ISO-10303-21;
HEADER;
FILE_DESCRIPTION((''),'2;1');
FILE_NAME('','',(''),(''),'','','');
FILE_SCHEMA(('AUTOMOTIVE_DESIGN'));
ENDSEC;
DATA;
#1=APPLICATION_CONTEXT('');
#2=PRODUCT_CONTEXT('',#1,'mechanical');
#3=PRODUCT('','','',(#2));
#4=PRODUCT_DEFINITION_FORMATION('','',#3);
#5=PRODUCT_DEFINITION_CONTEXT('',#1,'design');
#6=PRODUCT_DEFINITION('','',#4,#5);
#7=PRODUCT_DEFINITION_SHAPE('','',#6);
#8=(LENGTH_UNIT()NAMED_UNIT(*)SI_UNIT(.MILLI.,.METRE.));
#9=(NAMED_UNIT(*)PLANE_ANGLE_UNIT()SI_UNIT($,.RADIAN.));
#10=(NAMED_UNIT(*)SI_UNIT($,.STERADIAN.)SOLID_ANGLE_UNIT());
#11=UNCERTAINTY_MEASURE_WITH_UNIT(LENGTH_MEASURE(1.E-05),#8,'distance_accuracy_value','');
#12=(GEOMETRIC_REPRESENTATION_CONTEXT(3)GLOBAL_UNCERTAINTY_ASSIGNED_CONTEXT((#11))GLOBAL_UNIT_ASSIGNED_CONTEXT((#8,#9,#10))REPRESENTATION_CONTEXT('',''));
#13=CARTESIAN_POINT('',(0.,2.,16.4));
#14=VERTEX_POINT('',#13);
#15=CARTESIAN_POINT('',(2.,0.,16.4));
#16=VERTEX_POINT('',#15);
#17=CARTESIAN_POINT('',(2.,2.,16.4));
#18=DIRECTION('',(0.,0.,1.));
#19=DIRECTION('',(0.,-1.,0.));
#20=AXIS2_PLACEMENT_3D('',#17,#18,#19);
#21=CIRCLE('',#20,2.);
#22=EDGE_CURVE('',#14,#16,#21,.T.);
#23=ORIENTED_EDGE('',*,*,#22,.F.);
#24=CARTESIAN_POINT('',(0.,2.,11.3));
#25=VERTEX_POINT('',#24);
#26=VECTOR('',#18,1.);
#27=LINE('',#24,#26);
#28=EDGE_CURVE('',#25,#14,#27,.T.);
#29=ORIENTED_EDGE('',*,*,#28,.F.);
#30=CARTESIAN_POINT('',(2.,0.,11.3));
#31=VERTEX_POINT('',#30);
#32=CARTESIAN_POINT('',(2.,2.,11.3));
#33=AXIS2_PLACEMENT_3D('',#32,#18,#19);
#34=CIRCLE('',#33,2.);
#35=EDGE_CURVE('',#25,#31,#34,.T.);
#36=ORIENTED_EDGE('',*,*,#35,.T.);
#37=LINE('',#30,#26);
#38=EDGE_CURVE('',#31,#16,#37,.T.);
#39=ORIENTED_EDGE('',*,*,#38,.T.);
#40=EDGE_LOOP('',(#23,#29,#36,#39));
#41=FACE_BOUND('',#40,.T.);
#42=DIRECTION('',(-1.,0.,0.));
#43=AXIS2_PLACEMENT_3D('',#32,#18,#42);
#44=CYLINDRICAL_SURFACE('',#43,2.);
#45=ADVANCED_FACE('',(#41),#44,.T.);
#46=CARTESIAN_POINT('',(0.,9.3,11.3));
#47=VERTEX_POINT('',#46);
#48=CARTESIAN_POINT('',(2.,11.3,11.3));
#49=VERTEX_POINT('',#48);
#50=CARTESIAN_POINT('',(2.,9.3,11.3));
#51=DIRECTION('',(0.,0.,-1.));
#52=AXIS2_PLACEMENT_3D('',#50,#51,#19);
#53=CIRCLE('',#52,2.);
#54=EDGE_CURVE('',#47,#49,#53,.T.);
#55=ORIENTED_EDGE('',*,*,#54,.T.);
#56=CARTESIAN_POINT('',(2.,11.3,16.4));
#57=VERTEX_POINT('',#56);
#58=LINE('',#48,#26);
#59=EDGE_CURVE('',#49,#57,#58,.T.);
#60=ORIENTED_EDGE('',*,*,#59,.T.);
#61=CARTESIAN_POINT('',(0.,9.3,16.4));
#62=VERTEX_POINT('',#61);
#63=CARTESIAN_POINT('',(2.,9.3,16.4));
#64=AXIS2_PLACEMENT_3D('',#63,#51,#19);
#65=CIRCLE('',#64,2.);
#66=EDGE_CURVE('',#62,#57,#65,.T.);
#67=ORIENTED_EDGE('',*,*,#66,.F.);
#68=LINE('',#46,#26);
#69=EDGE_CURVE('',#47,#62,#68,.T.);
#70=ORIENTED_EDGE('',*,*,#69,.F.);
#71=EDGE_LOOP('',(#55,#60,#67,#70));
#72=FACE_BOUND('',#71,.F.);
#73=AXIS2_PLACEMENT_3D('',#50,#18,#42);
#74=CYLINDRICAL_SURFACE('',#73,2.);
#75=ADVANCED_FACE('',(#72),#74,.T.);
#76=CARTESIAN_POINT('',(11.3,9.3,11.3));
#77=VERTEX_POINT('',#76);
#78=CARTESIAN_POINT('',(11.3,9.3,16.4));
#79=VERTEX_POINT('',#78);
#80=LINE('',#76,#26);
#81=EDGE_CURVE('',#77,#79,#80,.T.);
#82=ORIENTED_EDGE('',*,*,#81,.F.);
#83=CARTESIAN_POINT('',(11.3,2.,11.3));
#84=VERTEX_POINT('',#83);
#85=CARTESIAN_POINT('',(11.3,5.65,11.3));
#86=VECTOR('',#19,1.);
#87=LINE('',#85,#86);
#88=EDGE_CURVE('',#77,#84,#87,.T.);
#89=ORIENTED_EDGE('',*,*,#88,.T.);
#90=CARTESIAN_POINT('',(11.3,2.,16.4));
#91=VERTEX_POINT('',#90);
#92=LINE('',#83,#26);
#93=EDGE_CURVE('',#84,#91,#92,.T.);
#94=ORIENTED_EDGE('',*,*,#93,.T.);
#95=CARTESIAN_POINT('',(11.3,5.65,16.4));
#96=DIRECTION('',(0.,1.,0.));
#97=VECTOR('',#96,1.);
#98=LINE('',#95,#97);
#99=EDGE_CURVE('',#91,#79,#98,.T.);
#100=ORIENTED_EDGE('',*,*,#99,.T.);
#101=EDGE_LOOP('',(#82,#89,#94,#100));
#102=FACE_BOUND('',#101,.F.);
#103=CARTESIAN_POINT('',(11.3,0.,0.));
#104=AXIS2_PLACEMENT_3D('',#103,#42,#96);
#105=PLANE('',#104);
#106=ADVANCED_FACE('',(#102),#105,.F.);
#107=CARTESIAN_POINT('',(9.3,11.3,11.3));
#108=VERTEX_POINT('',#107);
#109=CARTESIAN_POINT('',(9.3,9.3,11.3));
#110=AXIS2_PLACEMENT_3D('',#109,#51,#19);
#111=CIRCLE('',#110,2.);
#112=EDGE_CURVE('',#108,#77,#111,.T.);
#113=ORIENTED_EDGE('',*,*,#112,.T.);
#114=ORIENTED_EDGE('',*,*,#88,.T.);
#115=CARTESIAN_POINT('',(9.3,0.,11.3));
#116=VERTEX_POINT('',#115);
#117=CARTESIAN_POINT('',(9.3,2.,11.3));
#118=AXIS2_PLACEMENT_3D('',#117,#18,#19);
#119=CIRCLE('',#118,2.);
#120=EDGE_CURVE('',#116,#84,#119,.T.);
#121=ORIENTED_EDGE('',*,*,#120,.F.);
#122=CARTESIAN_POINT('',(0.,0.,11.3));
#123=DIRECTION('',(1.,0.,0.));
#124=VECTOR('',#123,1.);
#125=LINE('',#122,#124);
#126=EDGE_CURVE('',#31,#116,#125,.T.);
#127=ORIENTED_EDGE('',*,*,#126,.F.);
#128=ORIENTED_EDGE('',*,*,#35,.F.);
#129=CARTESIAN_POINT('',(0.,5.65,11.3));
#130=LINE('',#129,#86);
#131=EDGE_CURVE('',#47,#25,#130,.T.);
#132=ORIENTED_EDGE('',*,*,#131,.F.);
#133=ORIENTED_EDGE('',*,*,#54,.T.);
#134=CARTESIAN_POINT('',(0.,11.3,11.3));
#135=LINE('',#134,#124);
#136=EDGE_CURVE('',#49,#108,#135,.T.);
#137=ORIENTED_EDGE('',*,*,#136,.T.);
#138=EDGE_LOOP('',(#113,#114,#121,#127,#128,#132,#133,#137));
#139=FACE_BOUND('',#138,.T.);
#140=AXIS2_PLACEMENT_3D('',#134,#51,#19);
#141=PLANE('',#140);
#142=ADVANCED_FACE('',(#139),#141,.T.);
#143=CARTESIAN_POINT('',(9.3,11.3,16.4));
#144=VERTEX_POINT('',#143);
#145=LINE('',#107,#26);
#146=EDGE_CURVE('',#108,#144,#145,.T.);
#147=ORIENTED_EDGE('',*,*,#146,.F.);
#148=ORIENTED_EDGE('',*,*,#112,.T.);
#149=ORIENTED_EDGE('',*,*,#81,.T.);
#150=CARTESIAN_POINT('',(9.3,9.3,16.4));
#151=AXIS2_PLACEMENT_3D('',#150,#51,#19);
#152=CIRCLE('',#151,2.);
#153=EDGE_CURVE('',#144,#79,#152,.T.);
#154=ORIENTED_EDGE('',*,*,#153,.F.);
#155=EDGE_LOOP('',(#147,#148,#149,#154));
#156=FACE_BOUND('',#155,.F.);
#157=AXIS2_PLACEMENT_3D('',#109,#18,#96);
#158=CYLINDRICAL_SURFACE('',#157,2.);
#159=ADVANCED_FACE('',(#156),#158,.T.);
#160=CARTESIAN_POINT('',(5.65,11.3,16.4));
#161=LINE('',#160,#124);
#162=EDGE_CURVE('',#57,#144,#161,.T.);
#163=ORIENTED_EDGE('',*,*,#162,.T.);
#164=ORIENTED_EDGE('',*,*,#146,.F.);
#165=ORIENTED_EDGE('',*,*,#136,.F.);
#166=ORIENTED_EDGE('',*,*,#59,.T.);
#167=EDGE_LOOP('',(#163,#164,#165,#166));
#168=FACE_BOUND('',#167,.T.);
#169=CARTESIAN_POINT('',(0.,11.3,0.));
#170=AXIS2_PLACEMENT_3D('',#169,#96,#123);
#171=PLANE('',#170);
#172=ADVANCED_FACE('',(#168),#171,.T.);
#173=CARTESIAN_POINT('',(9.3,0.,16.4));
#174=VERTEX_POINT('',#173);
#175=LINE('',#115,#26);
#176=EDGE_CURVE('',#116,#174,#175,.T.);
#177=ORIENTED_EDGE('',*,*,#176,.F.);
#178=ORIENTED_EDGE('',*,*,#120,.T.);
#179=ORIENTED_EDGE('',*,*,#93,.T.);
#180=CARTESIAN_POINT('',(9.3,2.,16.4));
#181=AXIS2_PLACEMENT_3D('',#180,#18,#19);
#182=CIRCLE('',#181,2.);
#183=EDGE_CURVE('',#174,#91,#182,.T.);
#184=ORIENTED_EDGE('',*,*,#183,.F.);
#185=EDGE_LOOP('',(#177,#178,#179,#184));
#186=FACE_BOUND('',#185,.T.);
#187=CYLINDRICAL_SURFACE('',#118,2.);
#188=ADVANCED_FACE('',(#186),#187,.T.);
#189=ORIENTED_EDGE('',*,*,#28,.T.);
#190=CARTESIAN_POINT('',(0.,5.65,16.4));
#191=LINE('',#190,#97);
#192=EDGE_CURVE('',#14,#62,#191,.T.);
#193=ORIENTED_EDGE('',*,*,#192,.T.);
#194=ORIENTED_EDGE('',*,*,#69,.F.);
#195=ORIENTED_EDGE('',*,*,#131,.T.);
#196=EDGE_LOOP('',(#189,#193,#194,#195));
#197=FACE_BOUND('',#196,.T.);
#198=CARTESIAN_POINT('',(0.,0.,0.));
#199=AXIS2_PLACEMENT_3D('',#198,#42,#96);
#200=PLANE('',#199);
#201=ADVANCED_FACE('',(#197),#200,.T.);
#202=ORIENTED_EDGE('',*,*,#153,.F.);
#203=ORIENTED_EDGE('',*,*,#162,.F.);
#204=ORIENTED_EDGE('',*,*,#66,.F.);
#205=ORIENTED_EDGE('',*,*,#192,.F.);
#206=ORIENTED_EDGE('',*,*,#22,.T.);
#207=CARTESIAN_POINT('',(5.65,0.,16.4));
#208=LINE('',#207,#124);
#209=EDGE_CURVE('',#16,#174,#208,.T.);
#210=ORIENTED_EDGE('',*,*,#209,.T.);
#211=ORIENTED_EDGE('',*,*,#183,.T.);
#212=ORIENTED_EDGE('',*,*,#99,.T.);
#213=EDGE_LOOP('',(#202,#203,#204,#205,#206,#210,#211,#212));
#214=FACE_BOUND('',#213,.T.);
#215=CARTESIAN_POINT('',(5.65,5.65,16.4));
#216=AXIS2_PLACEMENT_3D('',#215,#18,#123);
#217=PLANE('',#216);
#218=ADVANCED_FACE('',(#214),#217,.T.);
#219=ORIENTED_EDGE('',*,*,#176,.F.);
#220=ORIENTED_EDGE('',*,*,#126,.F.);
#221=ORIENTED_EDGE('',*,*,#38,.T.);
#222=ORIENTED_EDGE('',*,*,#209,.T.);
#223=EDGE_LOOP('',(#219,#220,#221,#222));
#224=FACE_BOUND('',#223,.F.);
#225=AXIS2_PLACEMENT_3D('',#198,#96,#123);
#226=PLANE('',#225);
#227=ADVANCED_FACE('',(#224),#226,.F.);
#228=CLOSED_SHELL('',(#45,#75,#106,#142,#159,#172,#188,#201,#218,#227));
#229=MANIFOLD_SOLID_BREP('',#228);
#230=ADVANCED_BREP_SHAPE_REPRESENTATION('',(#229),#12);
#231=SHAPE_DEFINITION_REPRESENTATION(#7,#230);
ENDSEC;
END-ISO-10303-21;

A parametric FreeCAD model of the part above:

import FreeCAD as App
import Part
import Sketcher

V = App.Vector


def edges_at(feature, points):
    """Names of the edges that pass closest to the given points."""
    edges = feature.Shape.Edges
    near = lambda p: min(range(len(edges)), key=lambda i: edges[i].distToShape(Part.Vertex(*p))[0])
    return sorted({f"Edge{near(p) + 1}" for p in points})

doc = App.newDocument("Part")
body = doc.addObject("PartDesign::Body", "Body")

sketch1 = body.newObject("Sketcher::SketchObject", "Sketch")
sketch1.AttachmentSupport = (doc.getObject("XY_Plane"), [""])
sketch1.MapMode = "FlatFace"
sketch1.addGeometry([
    Part.LineSegment(V(0, 11, 0), V(0, 0, 0)),
    Part.LineSegment(V(0, 0, 0), V(11, 0, 0)),
    Part.LineSegment(V(11, 0, 0), V(11, 11, 0)),
    Part.LineSegment(V(11, 11, 0), V(0, 11, 0)),
], False)
sketch1.addConstraint([
    Sketcher.Constraint("Coincident", 0, 2, 1, 1),
    Sketcher.Constraint("Coincident", 1, 2, 2, 1),
    Sketcher.Constraint("Coincident", 2, 2, 3, 1),
    Sketcher.Constraint("Coincident", 3, 2, 0, 1),
    Sketcher.Constraint("Vertical", 0),
    Sketcher.Constraint("Horizontal", 1),
    Sketcher.Constraint("Vertical", 2),
    Sketcher.Constraint("Horizontal", 3),
    Sketcher.Constraint("Coincident", 0, 2, -1, 1),
    Sketcher.Constraint("Equal", 3, 0),
    Sketcher.Constraint("DistanceX", 1, 1, 1, 2, 11.3),
])
pad1 = body.newObject("PartDesign::Pad", "Pad")
pad1.Profile = sketch1
pad1.Length = 16.4

sketch2 = body.newObject("Sketcher::SketchObject", "Sketch001")
sketch2.AttachmentSupport = (doc.getObject("YZ_Plane"), [""])
sketch2.MapMode = "FlatFace"
sketch2.addGeometry([
    Part.LineSegment(V(11, 11, 0), V(11, 0, 0)),
    Part.LineSegment(V(11, 0, 0), V(0, 0, 0)),
    Part.LineSegment(V(0, 0, 0), V(0, 11, 0)),
    Part.LineSegment(V(0, 11, 0), V(11, 11, 0)),
], False)
sketch2.addConstraint([
    Sketcher.Constraint("Coincident", 0, 2, 1, 1),
    Sketcher.Constraint("Coincident", 1, 2, 2, 1),
    Sketcher.Constraint("Coincident", 2, 2, 3, 1),
    Sketcher.Constraint("Coincident", 3, 2, 0, 1),
    Sketcher.Constraint("Vertical", 0),
    Sketcher.Constraint("Horizontal", 1),
    Sketcher.Constraint("Vertical", 2),
    Sketcher.Constraint("Horizontal", 3),
    Sketcher.Constraint("Coincident", 1, 2, -1, 1),
    Sketcher.Constraint("Equal", 3, 0),
    Sketcher.Constraint("DistanceX", 1, 2, 1, 1, 11.3),
])
pocket1 = body.newObject("PartDesign::Pocket", "Pocket")
pocket1.Profile = sketch2
pocket1.Length = 25
pocket1.Reversed = True
doc.recompute()

fillet = body.newObject("PartDesign::Fillet", "Fillet")
fillet.Base = (pocket1, edges_at(pocket1, [
    (0, 0, 13.85),
    (11.3, 0, 13.85),
    (0, 11.3, 13.85),
    (11.3, 11.3, 13.85),
]))
fillet.Radius = 2

doc.recompute()
